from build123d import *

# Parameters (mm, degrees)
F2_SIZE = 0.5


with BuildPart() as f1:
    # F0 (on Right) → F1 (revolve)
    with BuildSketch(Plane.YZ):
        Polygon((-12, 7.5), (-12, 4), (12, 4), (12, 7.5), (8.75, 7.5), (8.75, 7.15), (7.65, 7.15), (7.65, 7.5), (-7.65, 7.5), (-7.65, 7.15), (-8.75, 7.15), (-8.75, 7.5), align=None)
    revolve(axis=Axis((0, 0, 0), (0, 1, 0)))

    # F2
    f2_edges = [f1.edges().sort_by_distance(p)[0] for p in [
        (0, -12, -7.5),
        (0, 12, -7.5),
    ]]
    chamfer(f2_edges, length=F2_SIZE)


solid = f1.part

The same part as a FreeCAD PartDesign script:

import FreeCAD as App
import Part
import Sketcher
from FreeCAD import Vector
Q = App.Units.Quantity


def edges_at(feature, points):
    """Names of the edges that pass closest to the given points."""
    edges = feature.Shape.Edges
    near = lambda p: min(range(len(edges)), key=lambda i: edges[i].distToShape(Part.Vertex(*p))[0])
    return sorted({f"Edge{near(p) + 1}" for p in points})


def add_polygon(sketch, points):
    """Adds a closed chain of lines whose ends are joined by coincident constraints."""
    first, n = sketch.GeometryCount, len(points)
    for a, b in zip(points, points[1:] + points[:1]):
        sketch.addGeometry(Part.LineSegment(App.Vector(*a, 0), App.Vector(*b, 0)), False)
    for i in range(n):
        sketch.addConstraint(Sketcher.Constraint("Coincident", first + i, 2, first + (i + 1) % n, 1))

doc = App.newDocument("Part")
body = doc.addObject("PartDesign::Body", "Body")

# Sketch on YZ plane
sketch1 = doc.addObject("Sketcher::SketchObject", "Sketch")
body.addObject(sketch1)
sketch1.AttachmentSupport = (doc.YZ_Plane, [""])
sketch1.MapMode = "FlatFace"
add_polygon(sketch1, [(-12, 7.5), (-12, 4), (12, 4), (12, 7.5), (8.75, 7.5), (8.75, 7.15), (7.65, 7.15), (7.65, 7.5), (-7.65, 7.5), (-7.65, 7.15), (-8.75, 7.15), (-8.75, 7.5)])  # lines 0-11
sketch1.addConstraint(Sketcher.Constraint("Vertical", 0))
sketch1.addConstraint(Sketcher.Constraint("Horizontal", 1))
sketch1.addConstraint(Sketcher.Constraint("Vertical", 2))
sketch1.addConstraint(Sketcher.Constraint("Horizontal", 3))
sketch1.addConstraint(Sketcher.Constraint("Vertical", 4))
sketch1.addConstraint(Sketcher.Constraint("Horizontal", 5))
sketch1.addConstraint(Sketcher.Constraint("Vertical", 6))
sketch1.addConstraint(Sketcher.Constraint("Horizontal", 7))
sketch1.addConstraint(Sketcher.Constraint("Vertical", 8))
sketch1.addConstraint(Sketcher.Constraint("Horizontal", 9))
sketch1.addConstraint(Sketcher.Constraint("Vertical", 10))
sketch1.addConstraint(Sketcher.Constraint("Horizontal", 11))
sketch1.addConstraint(Sketcher.Constraint("Symmetric", 5, 2, 8, 2, -2))
sketch1.addConstraint(Sketcher.Constraint("Symmetric", 3, 2, 10, 2, -2))
sketch1.addConstraint(Sketcher.Constraint("Horizontal", 3, 2, 6, 2))
sketch1.addConstraint(Sketcher.Constraint("Equal", 3, 11))
sketch1.addConstraint(Sketcher.Constraint("DistanceX", 1, 1, 1, 2, Q("24 mm")))
sketch1.addConstraint(Sketcher.Constraint("DistanceX", 5, 2, 5, 1, Q("1.1 mm")))
sketch1.addConstraint(Sketcher.Constraint("DistanceX", 7, 2, 7, 1, Q("15.3 mm")))
sketch1.addConstraint(Sketcher.Constraint("DistanceY", 0, 2, 0, 1, Q("3.5 mm")))
sketch1.addConstraint(Sketcher.Constraint("DistanceY", -1, 1, 0, 2, Q("4 mm")))
sketch1.addConstraint(Sketcher.Constraint("DistanceY", 4, 2, 4, 1, Q("0.35 mm")))
revolution = doc.addObject("PartDesign::Revolution", "Revolution")
body.addObject(revolution)
revolution.Profile = sketch1
revolution.ReferenceAxis = (sketch1, ["H_Axis"])
revolution.Angle = 360
doc.recompute()

chamfer = doc.addObject("PartDesign::Chamfer", "Chamfer")
body.addObject(chamfer)
chamfer.Base = (revolution, edges_at(revolution, [(0, -12, -7.5), (0, 12, -7.5)]))
chamfer.Size = 0.5

doc.recompute()
